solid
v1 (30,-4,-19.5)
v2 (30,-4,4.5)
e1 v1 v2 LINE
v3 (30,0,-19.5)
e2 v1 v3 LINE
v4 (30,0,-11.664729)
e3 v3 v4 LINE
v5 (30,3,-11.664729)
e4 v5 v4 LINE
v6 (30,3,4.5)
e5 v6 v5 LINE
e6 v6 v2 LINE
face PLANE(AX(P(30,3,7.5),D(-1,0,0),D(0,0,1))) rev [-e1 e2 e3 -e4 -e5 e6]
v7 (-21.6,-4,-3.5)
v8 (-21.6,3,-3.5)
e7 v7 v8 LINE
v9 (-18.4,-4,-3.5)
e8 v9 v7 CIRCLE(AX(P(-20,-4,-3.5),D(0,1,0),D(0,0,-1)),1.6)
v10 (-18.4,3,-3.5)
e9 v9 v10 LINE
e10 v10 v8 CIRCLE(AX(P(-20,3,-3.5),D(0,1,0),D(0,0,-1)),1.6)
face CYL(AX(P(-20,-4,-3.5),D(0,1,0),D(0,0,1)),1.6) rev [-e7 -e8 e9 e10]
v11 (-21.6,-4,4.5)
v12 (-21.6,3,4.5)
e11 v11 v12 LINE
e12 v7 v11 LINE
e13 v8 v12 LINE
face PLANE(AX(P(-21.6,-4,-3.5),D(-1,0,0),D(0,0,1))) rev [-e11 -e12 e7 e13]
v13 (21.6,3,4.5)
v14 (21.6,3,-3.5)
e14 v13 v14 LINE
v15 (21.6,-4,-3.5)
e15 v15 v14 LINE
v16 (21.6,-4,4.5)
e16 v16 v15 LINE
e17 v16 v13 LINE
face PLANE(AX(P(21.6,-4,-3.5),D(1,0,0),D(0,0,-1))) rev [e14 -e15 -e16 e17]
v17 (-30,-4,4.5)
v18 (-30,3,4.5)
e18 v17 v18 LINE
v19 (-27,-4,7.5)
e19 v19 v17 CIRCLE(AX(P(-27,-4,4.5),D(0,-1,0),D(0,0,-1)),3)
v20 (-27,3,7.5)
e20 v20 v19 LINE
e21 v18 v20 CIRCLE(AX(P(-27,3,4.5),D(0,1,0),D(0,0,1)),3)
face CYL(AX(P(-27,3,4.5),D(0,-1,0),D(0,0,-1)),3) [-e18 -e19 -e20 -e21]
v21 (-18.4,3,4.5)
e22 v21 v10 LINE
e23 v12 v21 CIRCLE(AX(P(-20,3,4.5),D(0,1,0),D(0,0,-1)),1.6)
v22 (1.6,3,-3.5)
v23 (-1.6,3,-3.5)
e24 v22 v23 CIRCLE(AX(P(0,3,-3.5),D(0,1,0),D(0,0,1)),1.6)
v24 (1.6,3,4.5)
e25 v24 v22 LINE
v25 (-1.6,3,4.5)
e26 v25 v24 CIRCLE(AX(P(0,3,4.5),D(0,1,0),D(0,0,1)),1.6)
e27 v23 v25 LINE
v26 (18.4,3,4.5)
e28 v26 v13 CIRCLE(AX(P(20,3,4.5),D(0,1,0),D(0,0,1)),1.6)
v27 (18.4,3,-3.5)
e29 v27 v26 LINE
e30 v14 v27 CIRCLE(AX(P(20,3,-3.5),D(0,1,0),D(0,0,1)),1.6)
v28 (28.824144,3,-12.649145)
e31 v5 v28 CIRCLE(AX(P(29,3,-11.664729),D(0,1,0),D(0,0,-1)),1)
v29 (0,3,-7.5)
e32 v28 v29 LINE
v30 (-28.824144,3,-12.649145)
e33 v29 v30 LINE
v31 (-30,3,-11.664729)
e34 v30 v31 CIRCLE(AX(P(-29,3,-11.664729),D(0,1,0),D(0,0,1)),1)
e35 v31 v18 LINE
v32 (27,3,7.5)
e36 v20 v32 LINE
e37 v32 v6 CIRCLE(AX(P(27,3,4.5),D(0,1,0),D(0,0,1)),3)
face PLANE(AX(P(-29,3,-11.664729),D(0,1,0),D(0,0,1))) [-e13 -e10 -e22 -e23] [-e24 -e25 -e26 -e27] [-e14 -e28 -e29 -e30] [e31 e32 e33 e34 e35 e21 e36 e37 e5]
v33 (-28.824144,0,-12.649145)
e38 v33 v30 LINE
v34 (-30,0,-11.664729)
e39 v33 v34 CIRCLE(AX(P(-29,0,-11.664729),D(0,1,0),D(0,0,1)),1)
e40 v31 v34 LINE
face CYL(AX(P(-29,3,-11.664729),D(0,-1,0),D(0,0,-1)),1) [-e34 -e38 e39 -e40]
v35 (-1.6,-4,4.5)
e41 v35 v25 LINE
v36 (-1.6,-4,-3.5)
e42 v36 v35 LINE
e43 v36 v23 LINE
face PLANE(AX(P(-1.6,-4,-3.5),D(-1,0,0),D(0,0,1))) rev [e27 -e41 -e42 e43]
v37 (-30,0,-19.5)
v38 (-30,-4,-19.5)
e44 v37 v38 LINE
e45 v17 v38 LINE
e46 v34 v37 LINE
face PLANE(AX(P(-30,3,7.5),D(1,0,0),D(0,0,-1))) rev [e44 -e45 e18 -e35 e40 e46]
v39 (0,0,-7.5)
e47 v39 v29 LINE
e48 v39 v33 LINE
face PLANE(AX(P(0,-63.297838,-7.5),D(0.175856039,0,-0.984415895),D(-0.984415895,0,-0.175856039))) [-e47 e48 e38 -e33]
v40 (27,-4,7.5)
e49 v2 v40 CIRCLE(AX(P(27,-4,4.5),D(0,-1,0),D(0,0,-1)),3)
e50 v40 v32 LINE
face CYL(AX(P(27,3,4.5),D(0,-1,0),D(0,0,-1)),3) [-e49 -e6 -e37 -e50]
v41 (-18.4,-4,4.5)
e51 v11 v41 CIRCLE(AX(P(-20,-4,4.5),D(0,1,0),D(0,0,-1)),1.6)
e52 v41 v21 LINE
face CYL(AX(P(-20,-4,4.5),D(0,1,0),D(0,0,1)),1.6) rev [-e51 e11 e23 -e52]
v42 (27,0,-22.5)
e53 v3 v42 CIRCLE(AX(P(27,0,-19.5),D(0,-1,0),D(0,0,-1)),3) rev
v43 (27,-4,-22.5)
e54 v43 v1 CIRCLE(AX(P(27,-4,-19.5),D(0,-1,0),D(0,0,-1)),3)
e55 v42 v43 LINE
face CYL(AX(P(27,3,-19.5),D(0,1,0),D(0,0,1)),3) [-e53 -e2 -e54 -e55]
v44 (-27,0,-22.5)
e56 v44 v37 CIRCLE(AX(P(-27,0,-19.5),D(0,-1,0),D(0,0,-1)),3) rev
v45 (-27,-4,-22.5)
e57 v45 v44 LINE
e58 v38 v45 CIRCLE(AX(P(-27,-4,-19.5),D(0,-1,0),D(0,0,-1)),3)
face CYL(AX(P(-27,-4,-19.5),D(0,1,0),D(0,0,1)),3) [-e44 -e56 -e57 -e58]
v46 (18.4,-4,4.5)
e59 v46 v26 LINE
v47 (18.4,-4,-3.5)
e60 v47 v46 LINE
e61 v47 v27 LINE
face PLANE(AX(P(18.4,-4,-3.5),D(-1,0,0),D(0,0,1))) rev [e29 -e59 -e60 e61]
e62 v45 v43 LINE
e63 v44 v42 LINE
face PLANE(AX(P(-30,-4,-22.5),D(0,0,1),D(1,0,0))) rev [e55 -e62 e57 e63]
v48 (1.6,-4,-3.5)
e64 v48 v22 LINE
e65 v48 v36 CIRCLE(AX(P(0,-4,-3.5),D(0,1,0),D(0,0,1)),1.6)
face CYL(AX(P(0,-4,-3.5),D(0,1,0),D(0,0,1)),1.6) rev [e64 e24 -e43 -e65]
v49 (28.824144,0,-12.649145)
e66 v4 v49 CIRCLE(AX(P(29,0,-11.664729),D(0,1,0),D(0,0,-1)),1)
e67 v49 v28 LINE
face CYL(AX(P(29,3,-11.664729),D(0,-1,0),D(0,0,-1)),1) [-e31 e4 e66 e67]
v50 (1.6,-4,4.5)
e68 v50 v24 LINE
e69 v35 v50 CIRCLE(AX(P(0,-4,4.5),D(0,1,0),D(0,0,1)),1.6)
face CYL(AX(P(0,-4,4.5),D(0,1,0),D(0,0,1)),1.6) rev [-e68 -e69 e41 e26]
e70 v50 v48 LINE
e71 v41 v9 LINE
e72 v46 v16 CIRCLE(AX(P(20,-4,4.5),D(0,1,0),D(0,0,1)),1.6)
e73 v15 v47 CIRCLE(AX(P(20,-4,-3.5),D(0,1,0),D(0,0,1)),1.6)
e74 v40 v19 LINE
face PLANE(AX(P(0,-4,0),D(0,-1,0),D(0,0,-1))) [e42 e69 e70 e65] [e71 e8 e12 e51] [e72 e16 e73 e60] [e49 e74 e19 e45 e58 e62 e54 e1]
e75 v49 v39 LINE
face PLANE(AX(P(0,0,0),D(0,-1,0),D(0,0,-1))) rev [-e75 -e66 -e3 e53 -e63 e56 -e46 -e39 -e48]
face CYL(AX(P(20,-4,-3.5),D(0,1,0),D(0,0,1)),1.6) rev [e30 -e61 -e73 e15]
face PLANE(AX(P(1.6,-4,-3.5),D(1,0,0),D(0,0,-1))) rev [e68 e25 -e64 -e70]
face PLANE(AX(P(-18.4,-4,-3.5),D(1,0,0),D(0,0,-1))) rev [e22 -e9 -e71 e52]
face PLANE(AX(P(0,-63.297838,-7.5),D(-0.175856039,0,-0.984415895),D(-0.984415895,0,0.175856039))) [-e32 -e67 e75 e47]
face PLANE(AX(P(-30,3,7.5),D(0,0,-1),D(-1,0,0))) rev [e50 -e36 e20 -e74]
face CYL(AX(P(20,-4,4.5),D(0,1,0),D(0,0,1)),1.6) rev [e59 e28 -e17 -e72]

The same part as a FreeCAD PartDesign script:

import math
import FreeCAD as App
import Part
import Sketcher

V = App.Vector


def edges_at(feature, points):
    """Names of the edges that pass closest to the given points."""
    edges = feature.Shape.Edges
    near = lambda p: min(range(len(edges)), key=lambda i: edges[i].distToShape(Part.Vertex(*p))[0])
    return sorted({f"Edge{near(p) + 1}" for p in points})

doc = App.newDocument("Part")
params = doc.addObject("Spreadsheet::Sheet", "Params")
for row, (alias, value) in enumerate([
    ("sketch1_radius", "1 mm"),
    ("sketch1_radius2", "83 mm"),
    ("sketch1_width", "60 mm"),
    ("pad1_length", "3 mm"),
    ("sketch2_width", "60 mm"),
    ("sketch2_height", "30 mm"),
    ("pad2_length", "4 mm"),
    ("fillet_radius", "3 mm"),
    ("sketch3_radius", "1.6 mm"),
    ("sketch3_height", "8 mm"),
    ("sketch4_radius", "1 mm"),
    ("sketch4_radius2", "3 mm"),
    ("sketch4_radius3", "1.6 mm"),
    ("sketch4_width", "54 mm"),
    ("sketch4_height", "8 mm"),
    ("pad3_length", "3 mm"),
], start=1):
    params.set(f"A{row}", alias)
    params.set(f"B{row}", "=" + value)
    params.setAlias(f"B{row}", alias)

body = doc.addObject("PartDesign::Body", "Body")

# Sketch on XZ plane
sketch1 = body.newObject("Sketcher::SketchObject", "Sketch")
sketch1.AttachmentSupport = (doc.getObject("XZ_Plane"), [""])
sketch1.MapMode = "FlatFace"
sketch1.addGeometry(Part.LineSegment(V(-30, 7.5, 0), V(30, 7.5, 0)), False)
sketch1.addGeometry(Part.LineSegment(V(30, 7.5, 0), V(30, -11.7, 0)), False)
sketch1.addGeometry(Part.ArcOfCircle(Part.Circle(V(29, -11.7, 0), V(0, 0, 1), 1), math.radians(-110), math.radians(0)), False)
sketch1.addGeometry(Part.ArcOfCircle(Part.Circle(V(0, -90.5, 0), V(0, 0, 1), 83), math.radians(70), math.radians(110)), False)
sketch1.addGeometry(Part.ArcOfCircle(Part.Circle(V(-29, -11.7, 0), V(0, 0, 1), 1), math.radians(180), math.radians(290)), False)
sketch1.addGeometry(Part.LineSegment(V(-30, -11.7, 0), V(-30, 7.5, 0)), False)
sketch1.addConstraint(Sketcher.Constraint("Coincident", 0, 2, 1, 1))
sketch1.addConstraint(Sketcher.Constraint("Tangent", 1, 2, 2, 2))
sketch1.addConstraint(Sketcher.Constraint("Tangent", 2, 1, 3, 1))
sketch1.addConstraint(Sketcher.Constraint("Tangent", 3, 2, 4, 2))
sketch1.addConstraint(Sketcher.Constraint("Tangent", 4, 1, 5, 1))
sketch1.addConstraint(Sketcher.Constraint("Coincident", 5, 2, 0, 1))
sketch1.addConstraint(Sketcher.Constraint("Horizontal", 0))
sketch1.addConstraint(Sketcher.Constraint("Vertical", 1))
sketch1.addConstraint(Sketcher.Constraint("Vertical", 5))
sketch1.addConstraint(Sketcher.Constraint("Equal", 2, 4))
sketch1.addConstraint(Sketcher.Constraint("Symmetric", 2, 3, 4, 3, -2))
sketch1.addConstraint(Sketcher.Constraint("Radius", 2, 1.0))
sketch1.addConstraint(Sketcher.Constraint("Radius", 3, 83.0))
sketch1.addConstraint(Sketcher.Constraint("DistanceX", 0, 1, 0, 2, 60.0))
sketch1.addConstraint(Sketcher.Constraint("DistanceY", 3, 3, 0, 2, 98.0))
sketch1.addConstraint(Sketcher.Constraint("DistanceY", 3, 3, -1, 1, 90.5))
sketch1.setExpression("Constraints[11]", "Params.sketch1_radius")
sketch1.setExpression("Constraints[12]", "Params.sketch1_radius2")
sketch1.setExpression("Constraints[13]", "Params.sketch1_width")
pad1 = body.newObject("PartDesign::Pad", "Pad")
pad1.Profile = sketch1
pad1.setExpression("Length", "Params.pad1_length")
pad1.Reversed = True

# Sketch on XZ plane
sketch2 = body.newObject("Sketcher::SketchObject", "Sketch001")
sketch2.AttachmentSupport = (doc.getObject("XZ_Plane"), [""])
sketch2.MapMode = "FlatFace"
sketch2.addGeometry(Part.LineSegment(V(-30, 8, 0), V(-30, -22, 0)), False)
sketch2.addGeometry(Part.LineSegment(V(-30, -22, 0), V(30, -22, 0)), False)
sketch2.addGeometry(Part.LineSegment(V(30, -22, 0), V(30, 8, 0)), False)
sketch2.addGeometry(Part.LineSegment(V(30, 8, 0), V(-30, 8, 0)), False)
sketch2.addConstraint(Sketcher.Constraint("Coincident", 0, 2, 1, 1))
sketch2.addConstraint(Sketcher.Constraint("Coincident", 1, 2, 2, 1))
sketch2.addConstraint(Sketcher.Constraint("Coincident", 2, 2, 3, 1))
sketch2.addConstraint(Sketcher.Constraint("Coincident", 3, 2, 0, 1))
sketch2.addConstraint(Sketcher.Constraint("Vertical", 0))
sketch2.addConstraint(Sketcher.Constraint("Horizontal", 1))
sketch2.addConstraint(Sketcher.Constraint("Vertical", 2))
sketch2.addConstraint(Sketcher.Constraint("Horizontal", 3))
sketch2.addConstraint(Sketcher.Constraint("DistanceX", 1, 1, 1, 2, 60.0))
sketch2.addConstraint(Sketcher.Constraint("DistanceY", 0, 2, 0, 1, 30.0))
sketch2.addConstraint(Sketcher.Constraint("DistanceX", 0, 2, -1, 1, 30.0))
sketch2.addConstraint(Sketcher.Constraint("DistanceY", 0, 2, -1, 1, 22.5))
sketch2.setExpression("Constraints[8]", "Params.sketch2_width")
sketch2.setExpression("Constraints[9]", "Params.sketch2_height")
pad2 = body.newObject("PartDesign::Pad", "Pad001")
pad2.Profile = sketch2
pad2.setExpression("Length", "Params.pad2_length")
doc.recompute()

fillet = body.newObject("PartDesign::Fillet", "Fillet")
fillet.Base = (pad2, edges_at(pad2, [
    (30, -2, -22.5),
    (30, -0.5, 7.5),
    (-30, -0.5, 7.5),
    (-30, -2, -22.5),
]))
fillet.setExpression("Radius", "Params.fillet_radius")

# Sketch on XZ plane
sketch3 = body.newObject("Sketcher::SketchObject", "Sketch002")
sketch3.AttachmentSupport = (doc.getObject("XZ_Plane"), [""])
sketch3.MapMode = "FlatFace"
sketch3.AttachmentOffset = App.Placement(V(0, 0, -3), App.Rotation())
sketch3.addGeometry(Part.LineSegment(V(1.6, 4.5, 0), V(1.6, -3.5, 0)), False)
sketch3.addGeometry(Part.ArcOfCircle(Part.Circle(V(0, -3.5, 0), V(0, 0, 1), 1.6), math.radians(180), math.radians(360)), False)
sketch3.addGeometry(Part.LineSegment(V(-1.6, -3.5, 0), V(-1.6, 4.5, 0)), False)
sketch3.addGeometry(Part.ArcOfCircle(Part.Circle(V(0, 4.5, 0), V(0, 0, 1), 1.6), math.radians(0), math.radians(180)), False)
sketch3.addGeometry(Part.LineSegment(V(21.6, 4.5, 0), V(21.6, -3.5, 0)), False)
sketch3.addGeometry(Part.ArcOfCircle(Part.Circle(V(20, -3.5, 0), V(0, 0, 1), 1.6), math.radians(180), math.radians(360)), False)
sketch3.addGeometry(Part.LineSegment(V(18.4, -3.5, 0), V(18.4, 4.5, 0)), False)
sketch3.addGeometry(Part.ArcOfCircle(Part.Circle(V(20, 4.5, 0), V(0, 0, 1), 1.6), math.radians(0), math.radians(180)), False)
sketch3.addGeometry(Part.LineSegment(V(-21.6, -3.5, 0), V(-21.6, 4.5, 0)), False)
sketch3.addGeometry(Part.ArcOfCircle(Part.Circle(V(-20, 4.5, 0), V(0, 0, 1), 1.6), math.radians(0), math.radians(180)), False)
sketch3.addGeometry(Part.LineSegment(V(-18.4, 4.5, 0), V(-18.4, -3.5, 0)), False)
sketch3.addGeometry(Part.ArcOfCircle(Part.Circle(V(-20, -3.5, 0), V(0, 0, 1), 1.6), math.radians(180), math.radians(360)), False)
sketch3.addConstraint(Sketcher.Constraint("Tangent", 0, 2, 1, 2))
sketch3.addConstraint(Sketcher.Constraint("Tangent", 1, 1, 2, 1))
sketch3.addConstraint(Sketcher.Constraint("Tangent", 2, 2, 3, 2))
sketch3.addConstraint(Sketcher.Constraint("Tangent", 3, 1, 0, 1))
sketch3.addConstraint(Sketcher.Constraint("Tangent", 4, 2, 5, 2))
sketch3.addConstraint(Sketcher.Constraint("Tangent", 5, 1, 6, 1))
sketch3.addConstraint(Sketcher.Constraint("Tangent", 6, 2, 7, 2))
sketch3.addConstraint(Sketcher.Constraint("Tangent", 7, 1, 4, 1))
sketch3.addConstraint(Sketcher.Constraint("Tangent", 8, 2, 9, 2))
sketch3.addConstraint(Sketcher.Constraint("Tangent", 9, 1, 10, 1))
sketch3.addConstraint(Sketcher.Constraint("Tangent", 10, 2, 11, 2))
sketch3.addConstraint(Sketcher.Constraint("Tangent", 11, 1, 8, 1))
sketch3.addConstraint(Sketcher.Constraint("Vertical", 0))
sketch3.addConstraint(Sketcher.Constraint("Vertical", 2))
sketch3.addConstraint(Sketcher.Constraint("Vertical", 4))
sketch3.addConstraint(Sketcher.Constraint("Vertical", 6))
sketch3.addConstraint(Sketcher.Constraint("Vertical", 8))
sketch3.addConstraint(Sketcher.Constraint("Vertical", 10))
sketch3.addConstraint(Sketcher.Constraint("Equal", 3, 5))
sketch3.addConstraint(Sketcher.Constraint("Equal", 7, 9))
sketch3.addConstraint(Sketcher.Constraint("Symmetric", 7, 3, 9, 3, -2))
sketch3.addConstraint(Sketcher.Constraint("PointOnObject", 1, 3, -2))
sketch3.addConstraint(Sketcher.Constraint("Horizontal", 1, 3, 5, 3))
sketch3.addConstraint(Sketcher.Constraint("Horizontal", 3, 3, 7, 3))
sketch3.addConstraint(Sketcher.Constraint("Horizontal", 5, 3, 11, 3))
sketch3.addConstraint(Sketcher.Constraint("Radius", 1, 1.6))
sketch3.addConstraint(Sketcher.Constraint("DistanceY", 0, 2, 0, 1, 8.0))
sketch3.addConstraint(Sketcher.Constraint("DistanceX", -1, 1, 5, 3, 20.0))
sketch3.addConstraint(Sketcher.Constraint("DistanceY", 1, 3, -1, 1, 3.5))
sketch3.setExpression("Constraints[25]", "Params.sketch3_radius")
sketch3.setExpression("Constraints[26]", "Params.sketch3_height")
pocket1 = body.newObject("PartDesign::Pocket", "Pocket")
pocket1.Profile = sketch3
pocket1.Type = "ThroughAll"
pocket1.Reversed = True

# Sketch on XZ plane
sketch4 = body.newObject("Sketcher::SketchObject", "Sketch003")
sketch4.AttachmentSupport = (doc.getObject("XZ_Plane"), [""])
sketch4.MapMode = "FlatFace"
sketch4.AttachmentOffset = App.Placement(V(0, 0, -3), App.Rotation())
sketch4.addGeometry(Part.LineSegment(V(0, -7.5, 0), V(-28.8, -12.6, 0)), False)
sketch4.addGeometry(Part.ArcOfCircle(Part.Circle(V(-29, -11.7, 0), V(0, 0, 1), 1), math.radians(180), math.radians(280)), False)
sketch4.addGeometry(Part.LineSegment(V(-30, -11.7, 0), V(-30, 4.5, 0)), False)
sketch4.addGeometry(Part.ArcOfCircle(Part.Circle(V(-27, 4.5, 0), V(0, 0, 1), 3), math.radians(90), math.radians(180)), False)
sketch4.addGeometry(Part.LineSegment(V(-27, 7.5, 0), V(27, 7.5, 0)), False)
sketch4.addGeometry(Part.ArcOfCircle(Part.Circle(V(27, 4.5, 0), V(0, 0, 1), 3), math.radians(0), math.radians(90)), False)
sketch4.addGeometry(Part.LineSegment(V(30, 4.5, 0), V(30, -11.7, 0)), False)
sketch4.addGeometry(Part.ArcOfCircle(Part.Circle(V(29, -11.7, 0), V(0, 0, 1), 1), math.radians(-100), math.radians(0)), False)
sketch4.addGeometry(Part.LineSegment(V(28.8, -12.6, 0), V(0, -7.5, 0)), False)
sketch4.addGeometry(Part.LineSegment(V(-18.4, -3.5, 0), V(-18.4, 4.5, 0)), False)
sketch4.addGeometry(Part.ArcOfCircle(Part.Circle(V(-20, 4.5, 0), V(0, 0, 1), 1.6), math.radians(0), math.radians(180)), False)
sketch4.addGeometry(Part.LineSegment(V(-21.6, 4.5, 0), V(-21.6, -3.5, 0)), False)
sketch4.addGeometry(Part.ArcOfCircle(Part.Circle(V(-20, -3.5, 0), V(0, 0, 1), 1.6), math.radians(180), math.radians(360)), False)
sketch4.addGeometry(Part.LineSegment(V(1.6, -3.5, 0), V(1.6, 4.5, 0)), False)
sketch4.addGeometry(Part.ArcOfCircle(Part.Circle(V(0, 4.5, 0), V(0, 0, 1), 1.6), math.radians(0), math.radians(180)), False)
sketch4.addGeometry(Part.LineSegment(V(-1.6, 4.5, 0), V(-1.6, -3.5, 0)), False)
sketch4.addGeometry(Part.ArcOfCircle(Part.Circle(V(0, -3.5, 0), V(0, 0, 1), 1.6), math.radians(180), math.radians(360)), False)
sketch4.addGeometry(Part.LineSegment(V(21.6, -3.5, 0), V(21.6, 4.5, 0)), False)
sketch4.addGeometry(Part.ArcOfCircle(Part.Circle(V(20, 4.5, 0), V(0, 0, 1), 1.6), math.radians(0), math.radians(180)), False)
sketch4.addGeometry(Part.LineSegment(V(18.4, 4.5, 0), V(18.4, -3.5, 0)), False)
sketch4.addGeometry(Part.ArcOfCircle(Part.Circle(V(20, -3.5, 0), V(0, 0, 1), 1.6), math.radians(180), math.radians(360)), False)
sketch4.addConstraint(Sketcher.Constraint("Tangent", 0, 2, 1, 2))
sketch4.addConstraint(Sketcher.Constraint("Tangent", 1, 1, 2, 1))
sketch4.addConstraint(Sketcher.Constraint("Tangent", 2, 2, 3, 2))
sketch4.addConstraint(Sketcher.Constraint("Tangent", 3, 1, 4, 1))
sketch4.addConstraint(Sketcher.Constraint("Tangent", 4, 2, 5, 2))
sketch4.addConstraint(Sketcher.Constraint("Tangent", 5, 1, 6, 1))
sketch4.addConstraint(Sketcher.Constraint("Tangent", 6, 2, 7, 2))
sketch4.addConstraint(Sketcher.Constraint("Tangent", 7, 1, 8, 1))
sketch4.addConstraint(Sketcher.Constraint("Coincident", 8, 2, 0, 1))
sketch4.addConstraint(Sketcher.Constraint("Tangent", 9, 2, 10, 1))
sketch4.addConstraint(Sketcher.Constraint("Tangent", 10, 2, 11, 1))
sketch4.addConstraint(Sketcher.Constraint("Tangent", 11, 2, 12, 1))
sketch4.addConstraint(Sketcher.Constraint("Tangent", 12, 2, 9, 1))
sketch4.addConstraint(Sketcher.Constraint("Tangent", 13, 2, 14, 1))
sketch4.addConstraint(Sketcher.Constraint("Tangent", 14, 2, 15, 1))
sketch4.addConstraint(Sketcher.Constraint("Tangent", 15, 2, 16, 1))
sketch4.addConstraint(Sketcher.Constraint("Tangent", 16, 2, 13, 1))
sketch4.addConstraint(Sketcher.Constraint("Tangent", 17, 2, 18, 1))
sketch4.addConstraint(Sketcher.Constraint("Tangent", 18, 2, 19, 1))
sketch4.addConstraint(Sketcher.Constraint("Tangent", 19, 2, 20, 1))
sketch4.addConstraint(Sketcher.Constraint("Tangent", 20, 2, 17, 1))
sketch4.addConstraint(Sketcher.Constraint("Vertical", 2))
sketch4.addConstraint(Sketcher.Constraint("Horizontal", 4))
sketch4.addConstraint(Sketcher.Constraint("Vertical", 6))
sketch4.addConstraint(Sketcher.Constraint("Vertical", 9))
sketch4.addConstraint(Sketcher.Constraint("Vertical", 11))
sketch4.addConstraint(Sketcher.Constraint("Vertical", 13))
sketch4.addConstraint(Sketcher.Constraint("Vertical", 15))
sketch4.addConstraint(Sketcher.Constraint("Vertical", 17))
sketch4.addConstraint(Sketcher.Constraint("Vertical", 19))
sketch4.addConstraint(Sketcher.Constraint("Equal", 3, 5))
sketch4.addConstraint(Sketcher.Constraint("Equal", 1, 7))
sketch4.addConstraint(Sketcher.Constraint("Equal", 12, 14))
sketch4.addConstraint(Sketcher.Constraint("Equal", 16, 18))
sketch4.addConstraint(Sketcher.Constraint("Symmetric", 1, 3, 7, 3, -2))
sketch4.addConstraint(Sketcher.Constraint("Symmetric", 10, 3, 18, 3, -2))
sketch4.addConstraint(Sketcher.Constraint("PointOnObject", 14, 3, -2))
sketch4.addConstraint(Sketcher.Constraint("PointOnObject", 8, 2, -2))
sketch4.addConstraint(Sketcher.Constraint("Horizontal", 5, 3, 10, 3))
sketch4.addConstraint(Sketcher.Constraint("Horizontal", 10, 3, 14, 3))
sketch4.addConstraint(Sketcher.Constraint("Horizontal", 12, 3, 16, 3))
sketch4.addConstraint(Sketcher.Constraint("Horizontal", 16, 3, 20, 3))
sketch4.addConstraint(Sketcher.Constraint("Radius", 1, 1.0))
sketch4.addConstraint(Sketcher.Constraint("Radius", 3, 3.0))
sketch4.addConstraint(Sketcher.Constraint("Radius", 10, 1.6))
sketch4.addConstraint(Sketcher.Constraint("DistanceX", 4, 1, 4, 2, 54.0))
sketch4.addConstraint(Sketcher.Constraint("DistanceY", 9, 1, 9, 2, 8.0))
sketch4.addConstraint(Sketcher.Constraint("DistanceX", 10, 3, -1, 1, 20.0))
sketch4.addConstraint(Sketcher.Constraint("DistanceY", 8, 2, 16, 3, 4.0))
sketch4.addConstraint(Sketcher.Constraint("DistanceY", -1, 1, 3, 3, 4.5))
sketch4.addConstraint(Sketcher.Constraint("DistanceY", 2, 1, 2, 2, 16.164729))
sketch4.setExpression("Constraints[42]", "Params.sketch4_radius")
sketch4.setExpression("Constraints[43]", "Params.sketch4_radius2")
sketch4.setExpression("Constraints[44]", "Params.sketch4_radius3")
sketch4.setExpression("Constraints[45]", "Params.sketch4_width")
sketch4.setExpression("Constraints[46]", "Params.sketch4_height")
pad3 = body.newObject("PartDesign::Pad", "Pad002")
pad3.Profile = sketch4
pad3.setExpression("Length", "Params.pad3_length")

doc.recompute()
